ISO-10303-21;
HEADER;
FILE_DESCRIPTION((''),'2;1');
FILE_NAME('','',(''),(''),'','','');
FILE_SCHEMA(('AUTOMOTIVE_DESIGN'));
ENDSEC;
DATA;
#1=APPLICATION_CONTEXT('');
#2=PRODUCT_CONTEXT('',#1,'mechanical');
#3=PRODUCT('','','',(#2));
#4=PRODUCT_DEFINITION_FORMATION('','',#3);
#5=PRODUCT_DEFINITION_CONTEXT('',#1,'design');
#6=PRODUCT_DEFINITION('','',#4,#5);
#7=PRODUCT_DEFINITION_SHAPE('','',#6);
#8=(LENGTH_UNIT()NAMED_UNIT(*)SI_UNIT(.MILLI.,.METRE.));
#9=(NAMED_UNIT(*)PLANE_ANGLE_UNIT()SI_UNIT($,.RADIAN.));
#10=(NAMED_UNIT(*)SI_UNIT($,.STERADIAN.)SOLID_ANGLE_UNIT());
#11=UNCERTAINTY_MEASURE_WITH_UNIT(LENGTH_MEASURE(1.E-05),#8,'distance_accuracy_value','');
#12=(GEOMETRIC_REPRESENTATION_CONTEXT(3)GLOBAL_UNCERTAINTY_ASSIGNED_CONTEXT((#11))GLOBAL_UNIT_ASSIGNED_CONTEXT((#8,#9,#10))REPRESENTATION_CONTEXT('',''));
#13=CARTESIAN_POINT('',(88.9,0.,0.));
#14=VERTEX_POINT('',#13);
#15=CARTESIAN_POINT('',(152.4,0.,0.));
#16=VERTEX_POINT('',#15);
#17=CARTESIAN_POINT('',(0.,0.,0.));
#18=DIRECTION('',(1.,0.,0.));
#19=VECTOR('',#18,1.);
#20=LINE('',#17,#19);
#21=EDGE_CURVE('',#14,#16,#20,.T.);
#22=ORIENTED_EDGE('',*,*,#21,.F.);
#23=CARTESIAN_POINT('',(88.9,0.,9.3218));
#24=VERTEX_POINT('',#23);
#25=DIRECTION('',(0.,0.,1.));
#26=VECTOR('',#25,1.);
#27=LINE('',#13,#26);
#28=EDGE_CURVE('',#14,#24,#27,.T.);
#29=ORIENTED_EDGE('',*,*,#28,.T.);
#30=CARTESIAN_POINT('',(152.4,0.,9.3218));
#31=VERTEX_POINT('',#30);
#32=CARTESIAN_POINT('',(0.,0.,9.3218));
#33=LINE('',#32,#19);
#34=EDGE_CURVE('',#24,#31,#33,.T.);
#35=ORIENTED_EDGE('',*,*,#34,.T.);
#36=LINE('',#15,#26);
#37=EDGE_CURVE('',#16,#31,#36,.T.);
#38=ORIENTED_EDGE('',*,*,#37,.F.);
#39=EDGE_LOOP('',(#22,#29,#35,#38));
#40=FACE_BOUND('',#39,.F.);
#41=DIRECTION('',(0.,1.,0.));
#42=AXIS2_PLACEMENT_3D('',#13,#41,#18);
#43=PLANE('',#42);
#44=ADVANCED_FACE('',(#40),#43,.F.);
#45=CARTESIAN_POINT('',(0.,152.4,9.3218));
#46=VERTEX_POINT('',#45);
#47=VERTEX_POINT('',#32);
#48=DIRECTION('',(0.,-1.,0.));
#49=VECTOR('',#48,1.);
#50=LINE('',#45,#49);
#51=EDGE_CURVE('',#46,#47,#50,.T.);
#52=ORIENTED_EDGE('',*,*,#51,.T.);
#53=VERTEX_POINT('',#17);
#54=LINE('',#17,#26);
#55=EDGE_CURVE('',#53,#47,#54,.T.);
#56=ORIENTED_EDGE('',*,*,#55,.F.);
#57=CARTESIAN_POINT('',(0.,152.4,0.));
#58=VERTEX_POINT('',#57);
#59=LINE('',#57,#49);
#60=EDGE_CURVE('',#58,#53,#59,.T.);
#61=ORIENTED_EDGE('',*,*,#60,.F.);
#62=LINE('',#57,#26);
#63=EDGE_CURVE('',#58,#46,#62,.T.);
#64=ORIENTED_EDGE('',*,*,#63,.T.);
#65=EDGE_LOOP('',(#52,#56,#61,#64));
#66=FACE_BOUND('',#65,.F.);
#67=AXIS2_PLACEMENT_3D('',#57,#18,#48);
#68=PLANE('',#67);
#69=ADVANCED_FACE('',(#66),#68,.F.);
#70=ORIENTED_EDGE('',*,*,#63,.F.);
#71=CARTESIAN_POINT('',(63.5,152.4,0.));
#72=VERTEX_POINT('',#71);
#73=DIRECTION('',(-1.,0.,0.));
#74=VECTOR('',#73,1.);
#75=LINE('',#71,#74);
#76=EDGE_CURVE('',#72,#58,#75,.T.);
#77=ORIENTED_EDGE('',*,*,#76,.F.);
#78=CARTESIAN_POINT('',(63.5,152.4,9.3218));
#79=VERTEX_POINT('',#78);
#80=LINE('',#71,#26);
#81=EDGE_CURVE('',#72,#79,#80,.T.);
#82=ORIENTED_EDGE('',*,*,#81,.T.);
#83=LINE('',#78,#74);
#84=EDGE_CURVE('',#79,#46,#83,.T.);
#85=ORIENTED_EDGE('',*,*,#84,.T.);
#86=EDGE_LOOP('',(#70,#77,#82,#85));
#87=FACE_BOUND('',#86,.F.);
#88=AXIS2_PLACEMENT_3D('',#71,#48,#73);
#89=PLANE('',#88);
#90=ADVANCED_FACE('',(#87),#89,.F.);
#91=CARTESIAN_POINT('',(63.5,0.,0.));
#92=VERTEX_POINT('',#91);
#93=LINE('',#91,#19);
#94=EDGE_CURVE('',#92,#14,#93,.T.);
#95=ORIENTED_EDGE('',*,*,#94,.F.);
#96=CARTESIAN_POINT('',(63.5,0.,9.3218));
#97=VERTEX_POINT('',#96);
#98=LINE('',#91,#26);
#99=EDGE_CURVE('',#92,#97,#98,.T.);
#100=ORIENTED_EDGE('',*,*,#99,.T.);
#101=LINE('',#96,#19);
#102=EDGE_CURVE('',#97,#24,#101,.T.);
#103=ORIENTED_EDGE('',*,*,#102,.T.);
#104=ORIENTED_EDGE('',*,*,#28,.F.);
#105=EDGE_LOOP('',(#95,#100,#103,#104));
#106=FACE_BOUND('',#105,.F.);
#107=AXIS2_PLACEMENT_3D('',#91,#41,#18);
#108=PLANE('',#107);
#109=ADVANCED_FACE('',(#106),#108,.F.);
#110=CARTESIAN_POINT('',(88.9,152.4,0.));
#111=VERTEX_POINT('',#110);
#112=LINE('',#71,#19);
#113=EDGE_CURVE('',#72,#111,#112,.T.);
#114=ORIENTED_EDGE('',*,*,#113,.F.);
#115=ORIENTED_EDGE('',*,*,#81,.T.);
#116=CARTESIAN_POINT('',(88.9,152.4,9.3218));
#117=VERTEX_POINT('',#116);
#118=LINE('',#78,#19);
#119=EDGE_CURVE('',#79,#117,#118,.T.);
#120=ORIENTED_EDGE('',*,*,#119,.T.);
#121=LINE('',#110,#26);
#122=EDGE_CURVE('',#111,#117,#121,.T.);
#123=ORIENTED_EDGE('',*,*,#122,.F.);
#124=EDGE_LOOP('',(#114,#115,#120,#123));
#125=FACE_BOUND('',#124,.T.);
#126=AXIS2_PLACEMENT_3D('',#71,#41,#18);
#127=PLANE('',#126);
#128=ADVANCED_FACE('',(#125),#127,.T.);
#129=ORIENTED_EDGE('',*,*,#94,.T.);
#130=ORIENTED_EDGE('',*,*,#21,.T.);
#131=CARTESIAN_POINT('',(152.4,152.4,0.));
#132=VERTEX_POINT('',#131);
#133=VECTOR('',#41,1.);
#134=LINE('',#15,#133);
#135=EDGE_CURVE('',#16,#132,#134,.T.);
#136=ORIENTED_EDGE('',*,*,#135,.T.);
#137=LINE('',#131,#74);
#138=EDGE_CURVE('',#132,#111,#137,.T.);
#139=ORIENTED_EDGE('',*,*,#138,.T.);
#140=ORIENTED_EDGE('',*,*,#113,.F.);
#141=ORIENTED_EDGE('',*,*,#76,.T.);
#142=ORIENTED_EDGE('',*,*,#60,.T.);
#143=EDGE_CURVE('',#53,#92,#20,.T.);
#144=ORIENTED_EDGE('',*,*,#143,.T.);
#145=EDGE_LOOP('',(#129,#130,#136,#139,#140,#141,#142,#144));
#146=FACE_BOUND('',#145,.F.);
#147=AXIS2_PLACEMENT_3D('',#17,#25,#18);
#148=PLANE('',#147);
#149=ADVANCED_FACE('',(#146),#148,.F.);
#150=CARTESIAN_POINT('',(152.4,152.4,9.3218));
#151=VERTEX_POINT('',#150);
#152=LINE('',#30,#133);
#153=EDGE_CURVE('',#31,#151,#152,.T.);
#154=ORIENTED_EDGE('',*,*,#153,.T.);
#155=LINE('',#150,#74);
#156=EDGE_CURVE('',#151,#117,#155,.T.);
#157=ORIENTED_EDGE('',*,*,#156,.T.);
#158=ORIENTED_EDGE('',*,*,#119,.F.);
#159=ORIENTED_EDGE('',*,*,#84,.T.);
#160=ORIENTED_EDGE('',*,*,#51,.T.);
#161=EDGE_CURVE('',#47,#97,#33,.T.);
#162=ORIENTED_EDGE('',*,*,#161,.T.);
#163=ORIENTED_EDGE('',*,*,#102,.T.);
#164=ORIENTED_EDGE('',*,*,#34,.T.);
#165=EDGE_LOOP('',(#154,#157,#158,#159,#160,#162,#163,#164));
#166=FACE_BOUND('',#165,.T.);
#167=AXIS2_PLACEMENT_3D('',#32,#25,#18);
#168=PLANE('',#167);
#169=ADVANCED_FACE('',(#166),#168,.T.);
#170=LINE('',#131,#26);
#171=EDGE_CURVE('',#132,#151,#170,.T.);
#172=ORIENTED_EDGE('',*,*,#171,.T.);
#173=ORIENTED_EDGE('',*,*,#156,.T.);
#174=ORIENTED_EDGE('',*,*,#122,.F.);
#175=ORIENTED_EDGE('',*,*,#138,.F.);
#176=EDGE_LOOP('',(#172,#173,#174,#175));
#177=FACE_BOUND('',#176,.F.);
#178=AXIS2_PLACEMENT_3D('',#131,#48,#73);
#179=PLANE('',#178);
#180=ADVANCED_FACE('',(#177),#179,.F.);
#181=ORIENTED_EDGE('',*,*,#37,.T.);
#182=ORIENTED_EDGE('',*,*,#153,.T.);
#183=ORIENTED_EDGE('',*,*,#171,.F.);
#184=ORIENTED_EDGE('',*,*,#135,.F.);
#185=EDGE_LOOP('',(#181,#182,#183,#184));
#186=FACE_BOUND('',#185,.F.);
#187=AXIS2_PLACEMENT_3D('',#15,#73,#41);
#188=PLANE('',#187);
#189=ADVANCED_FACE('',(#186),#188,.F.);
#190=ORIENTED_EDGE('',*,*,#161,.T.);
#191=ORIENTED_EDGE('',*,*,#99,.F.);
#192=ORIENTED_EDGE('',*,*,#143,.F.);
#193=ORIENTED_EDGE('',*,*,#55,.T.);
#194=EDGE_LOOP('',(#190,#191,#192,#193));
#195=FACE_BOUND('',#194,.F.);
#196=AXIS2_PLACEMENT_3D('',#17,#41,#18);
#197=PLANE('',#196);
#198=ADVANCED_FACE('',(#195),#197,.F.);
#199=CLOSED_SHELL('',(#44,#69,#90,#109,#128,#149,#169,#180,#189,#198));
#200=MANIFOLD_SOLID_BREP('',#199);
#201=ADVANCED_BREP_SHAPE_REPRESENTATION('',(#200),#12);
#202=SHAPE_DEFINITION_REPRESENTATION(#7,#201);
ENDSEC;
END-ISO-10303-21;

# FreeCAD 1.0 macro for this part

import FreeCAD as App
import Part
import Sketcher
from FreeCAD import Vector
Q = App.Units.Quantity


def add_polygon(sketch, points):
    """Adds a closed chain of lines whose ends are joined by coincident constraints."""
    first, n = sketch.GeometryCount, len(points)
    for a, b in zip(points, points[1:] + points[:1]):
        sketch.addGeometry(Part.LineSegment(App.Vector(*a, 0), App.Vector(*b, 0)), False)
    for i in range(n):
        sketch.addConstraint(Sketcher.Constraint("Coincident", first + i, 2, first + (i + 1) % n, 1))

doc = App.newDocument("Part")
params = doc.addObject("Spreadsheet::Sheet", "Params")
for row, (alias, value) in enumerate([
    ("sketch1_width", "6 in"),
    ("pad1_length", "0.367 in"),
], start=1):
    params.set(f"A{row}", alias)
    params.set(f"B{row}", "=" + value)
    params.setAlias(f"B{row}", alias)

body = doc.addObject("PartDesign::Body", "Body")

# Sketch on XY plane
sketch1 = body.newObject("Sketcher::SketchObject", "Sketch")
sketch1.AttachmentSupport = (doc.getObject("XY_Plane"), [""])
sketch1.MapMode = "FlatFace"
add_polygon(sketch1, [(0, 152), (0, 0), (152, 0), (152, 152)])  # lines 0-3
sketch1.addConstraint(Sketcher.Constraint("Vertical", 0))
sketch1.addConstraint(Sketcher.Constraint("Horizontal", 1))
sketch1.addConstraint(Sketcher.Constraint("Vertical", 2))
sketch1.addConstraint(Sketcher.Constraint("Horizontal", 3))
sketch1.addConstraint(Sketcher.Constraint("Coincident", 0, 2, -1, 1))
sketch1.addConstraint(Sketcher.Constraint("Equal", 3, 0))
sketch1.addConstraint(Sketcher.Constraint("DistanceX", 1, 1, 1, 2, Q("6 in")))
sketch1.setExpression("Constraints[10]", "Params.sketch1_width")
pad1 = body.newObject("PartDesign::Pad", "Pad")
pad1.Profile = sketch1
pad1.setExpression("Length", "Params.pad1_length")

doc.recompute()
